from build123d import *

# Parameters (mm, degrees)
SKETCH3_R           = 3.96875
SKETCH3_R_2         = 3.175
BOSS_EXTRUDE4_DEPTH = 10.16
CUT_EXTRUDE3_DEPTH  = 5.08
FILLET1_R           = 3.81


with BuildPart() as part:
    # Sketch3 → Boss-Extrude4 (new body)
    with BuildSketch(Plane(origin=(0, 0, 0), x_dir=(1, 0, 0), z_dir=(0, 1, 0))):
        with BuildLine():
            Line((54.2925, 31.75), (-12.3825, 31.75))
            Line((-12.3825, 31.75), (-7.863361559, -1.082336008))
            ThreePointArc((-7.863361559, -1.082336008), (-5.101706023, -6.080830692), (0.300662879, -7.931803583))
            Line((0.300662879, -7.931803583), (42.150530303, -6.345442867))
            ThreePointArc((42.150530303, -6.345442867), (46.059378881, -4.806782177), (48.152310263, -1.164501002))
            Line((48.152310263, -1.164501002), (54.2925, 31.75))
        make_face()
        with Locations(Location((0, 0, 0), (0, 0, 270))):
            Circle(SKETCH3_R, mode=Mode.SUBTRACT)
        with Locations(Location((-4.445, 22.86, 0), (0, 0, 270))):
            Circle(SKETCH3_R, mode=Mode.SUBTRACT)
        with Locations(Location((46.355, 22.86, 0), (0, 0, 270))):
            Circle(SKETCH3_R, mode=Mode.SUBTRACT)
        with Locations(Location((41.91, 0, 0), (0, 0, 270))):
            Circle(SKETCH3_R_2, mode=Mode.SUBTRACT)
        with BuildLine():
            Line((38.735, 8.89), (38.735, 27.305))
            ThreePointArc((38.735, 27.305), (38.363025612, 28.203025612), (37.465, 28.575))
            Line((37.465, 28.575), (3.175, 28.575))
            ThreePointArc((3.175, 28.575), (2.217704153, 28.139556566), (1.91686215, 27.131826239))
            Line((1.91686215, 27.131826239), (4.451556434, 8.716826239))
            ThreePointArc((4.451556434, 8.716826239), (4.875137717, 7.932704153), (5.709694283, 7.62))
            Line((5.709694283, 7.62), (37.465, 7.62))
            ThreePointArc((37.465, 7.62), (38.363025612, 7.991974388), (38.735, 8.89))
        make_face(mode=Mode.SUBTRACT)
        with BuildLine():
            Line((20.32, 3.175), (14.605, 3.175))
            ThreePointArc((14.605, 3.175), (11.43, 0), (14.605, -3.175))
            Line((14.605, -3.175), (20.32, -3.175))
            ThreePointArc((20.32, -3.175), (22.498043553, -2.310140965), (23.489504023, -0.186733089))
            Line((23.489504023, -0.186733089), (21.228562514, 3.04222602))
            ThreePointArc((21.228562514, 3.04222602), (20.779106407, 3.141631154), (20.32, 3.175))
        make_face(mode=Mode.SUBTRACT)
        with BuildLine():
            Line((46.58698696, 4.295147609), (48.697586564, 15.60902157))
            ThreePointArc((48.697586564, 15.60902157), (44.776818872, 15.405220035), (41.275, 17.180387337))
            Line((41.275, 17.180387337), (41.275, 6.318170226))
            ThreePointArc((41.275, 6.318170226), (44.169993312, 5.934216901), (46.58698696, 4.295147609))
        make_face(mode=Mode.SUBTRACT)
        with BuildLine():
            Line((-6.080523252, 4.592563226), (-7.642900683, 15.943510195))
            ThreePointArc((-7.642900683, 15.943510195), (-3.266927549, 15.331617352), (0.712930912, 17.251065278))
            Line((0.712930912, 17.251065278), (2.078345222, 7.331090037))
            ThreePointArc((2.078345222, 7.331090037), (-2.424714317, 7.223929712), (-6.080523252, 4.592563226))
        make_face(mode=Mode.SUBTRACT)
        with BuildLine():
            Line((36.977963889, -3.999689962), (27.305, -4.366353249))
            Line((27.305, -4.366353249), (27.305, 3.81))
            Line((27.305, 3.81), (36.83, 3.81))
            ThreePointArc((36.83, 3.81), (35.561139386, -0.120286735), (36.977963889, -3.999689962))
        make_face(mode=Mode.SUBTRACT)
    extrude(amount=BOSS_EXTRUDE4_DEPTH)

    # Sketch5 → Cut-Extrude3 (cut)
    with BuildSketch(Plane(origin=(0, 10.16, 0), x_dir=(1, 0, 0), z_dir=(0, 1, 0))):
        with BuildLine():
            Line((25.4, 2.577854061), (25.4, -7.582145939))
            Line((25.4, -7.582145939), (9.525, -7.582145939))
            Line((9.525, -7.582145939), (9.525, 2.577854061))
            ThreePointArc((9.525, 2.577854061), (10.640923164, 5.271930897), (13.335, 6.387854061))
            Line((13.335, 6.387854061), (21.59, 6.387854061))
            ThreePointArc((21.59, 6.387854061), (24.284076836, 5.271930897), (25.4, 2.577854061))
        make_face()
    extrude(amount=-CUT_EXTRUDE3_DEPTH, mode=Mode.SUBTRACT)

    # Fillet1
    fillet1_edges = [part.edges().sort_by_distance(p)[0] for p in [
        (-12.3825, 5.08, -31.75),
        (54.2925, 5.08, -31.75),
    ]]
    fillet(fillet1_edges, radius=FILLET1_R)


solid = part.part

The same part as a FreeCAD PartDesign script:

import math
import FreeCAD as App
import Part
import Sketcher
from FreeCAD import Vector
Q = App.Units.Quantity


def edges_at(feature, points):
    """Names of the edges that pass closest to the given points."""
    edges = feature.Shape.Edges
    near = lambda p: min(range(len(edges)), key=lambda i: edges[i].distToShape(Part.Vertex(*p))[0])
    return sorted({f"Edge{near(p) + 1}" for p in points})

doc = App.newDocument("Part")
body = doc.addObject("PartDesign::Body", "Body")

# Sketch on XZ plane
sketch1 = doc.addObject("Sketcher::SketchObject", "Sketch")
body.addObject(sketch1)
sketch1.AttachmentSupport = (doc.XZ_Plane, [""])
sketch1.MapMode = "FlatFace"
sketch1.addGeometry(Part.LineSegment(Vector(54.3, -31.8, 0), Vector(-12.4, -31.8, 0)), False)
sketch1.addGeometry(Part.LineSegment(Vector(-12.4, -31.8, 0), Vector(-7.9, 1.1, 0)), False)
sketch1.addGeometry(Part.ArcOfCircle(Part.Circle(Vector(0, 0, 0), Vector(0, 0, 1), 7.9), math.radians(88), math.radians(172)), False)
sketch1.addGeometry(Part.LineSegment(Vector(0.3, 7.9, 0), Vector(42.2, 6.3, 0)), False)
sketch1.addGeometry(Part.ArcOfCircle(Part.Circle(Vector(41.9, 0, 0), Vector(0, 0, 1), 6.4), math.radians(11), math.radians(88)), False)
sketch1.addGeometry(Part.LineSegment(Vector(48.2, 1.2, 0), Vector(54.3, -31.8, 0)), False)
sketch1.addGeometry(Part.Circle(Vector(0, 0, 0), Vector(0, 0, 1), 4), False)
sketch1.addGeometry(Part.LineSegment(Vector(14.6, -3.2, 0), Vector(20.3, -3.2, 0)), False)
sketch1.addGeometry(Part.ArcOfCircle(Part.Circle(Vector(20.3, 0, 0), Vector(0, 0, 1), 3.2), math.radians(-90), math.radians(-73.37)), False)
sketch1.addGeometry(Part.LineSegment(Vector(21.2, -3, 0), Vector(23.5, 0.2, 0)), False)
sketch1.addGeometry(Part.ArcOfCircle(Part.Circle(Vector(20.3, 0, 0), Vector(0, 0, 1), 3.2), math.radians(3), math.radians(90)), False)
sketch1.addGeometry(Part.LineSegment(Vector(20.3, 3.2, 0), Vector(14.6, 3.2, 0)), False)
sketch1.addGeometry(Part.ArcOfCircle(Part.Circle(Vector(14.6, 0, 0), Vector(0, 0, 1), 3.2), math.radians(90), math.radians(270)), False)
sketch1.addGeometry(Part.ArcOfCircle(Part.Circle(Vector(0, 0, 0), Vector(0, 0, 1), 7.6), math.radians(-143), math.radians(-74)), False)
sketch1.addGeometry(Part.LineSegment(Vector(-6.1, -4.6, 0), Vector(-7.6, -15.9, 0)), False)
sketch1.addGeometry(Part.ArcOfCircle(Part.Circle(Vector(-4.4, -22.9, 0), Vector(0, 0, 1), 7.6), math.radians(47), math.radians(115)), False)
sketch1.addGeometry(Part.LineSegment(Vector(0.7, -17.3, 0), Vector(2.1, -7.3, 0)), False)
sketch1.addGeometry(Part.ArcOfCircle(Part.Circle(Vector(41.9, 0, 0), Vector(0, 0, 1), 6.3), math.radians(141), math.radians(217)), False)
sketch1.addGeometry(Part.LineSegment(Vector(37, 4, 0), Vector(27.3, 4.4, 0)), False)
sketch1.addGeometry(Part.LineSegment(Vector(27.3, 4.4, 0), Vector(27.3, -3.8, 0)), False)
sketch1.addGeometry(Part.LineSegment(Vector(27.3, -3.8, 0), Vector(36.8, -3.8, 0)), False)
sketch1.addGeometry(Part.Circle(Vector(41.9, 0, 0), Vector(0, 0, 1), 3.2), False)
sketch1.addGeometry(Part.LineSegment(Vector(48.7, -15.6, 0), Vector(46.6, -4.3, 0)), False)
sketch1.addGeometry(Part.ArcOfCircle(Part.Circle(Vector(41.9, 0, 0), Vector(0, 0, 1), 6.4), math.radians(-96), math.radians(-43)), False)
sketch1.addGeometry(Part.LineSegment(Vector(41.3, -6.3, 0), Vector(41.3, -17.2, 0)), False)
sketch1.addGeometry(Part.ArcOfCircle(Part.Circle(Vector(46.4, -22.9, 0), Vector(0, 0, 1), 7.6), math.radians(72), math.radians(132)), False)
sketch1.addGeometry(Part.LineSegment(Vector(38.7, -27.3, 0), Vector(38.7, -8.9, 0)), False)
sketch1.addGeometry(Part.ArcOfCircle(Part.Circle(Vector(37.5, -8.9, 0), Vector(0, 0, 1), 1.3), math.radians(0), math.radians(90)), False)
sketch1.addGeometry(Part.LineSegment(Vector(37.5, -7.6, 0), Vector(5.7, -7.6, 0)), False)
sketch1.addGeometry(Part.ArcOfCircle(Part.Circle(Vector(5.7, -8.9, 0), Vector(0, 0, 1), 1.3), math.radians(90), math.radians(172)), False)
sketch1.addGeometry(Part.LineSegment(Vector(4.5, -8.7, 0), Vector(1.9, -27.1, 0)), False)
sketch1.addGeometry(Part.ArcOfCircle(Part.Circle(Vector(3.2, -27.3, 0), Vector(0, 0, 1), 1.3), math.radians(172), math.radians(270)), False)
sketch1.addGeometry(Part.LineSegment(Vector(3.2, -28.6, 0), Vector(37.5, -28.6, 0)), False)
sketch1.addGeometry(Part.ArcOfCircle(Part.Circle(Vector(37.5, -27.3, 0), Vector(0, 0, 1), 1.3), math.radians(-90), math.radians(0)), False)
sketch1.addGeometry(Part.Circle(Vector(-4.4, -22.9, 0), Vector(0, 0, 1), 4), False)
sketch1.addGeometry(Part.Circle(Vector(46.4, -22.9, 0), Vector(0, 0, 1), 4), False)
sketch1.addConstraint(Sketcher.Constraint("Coincident", 0, 2, 1, 1))
sketch1.addConstraint(Sketcher.Constraint("Tangent", 1, 2, 2, 2))
sketch1.addConstraint(Sketcher.Constraint("Tangent", 2, 1, 3, 1))
sketch1.addConstraint(Sketcher.Constraint("Tangent", 3, 2, 4, 2))
sketch1.addConstraint(Sketcher.Constraint("Tangent", 4, 1, 5, 1))
sketch1.addConstraint(Sketcher.Constraint("Coincident", 5, 2, 0, 1))
sketch1.addConstraint(Sketcher.Constraint("Tangent", 7, 2, 8, 1))
sketch1.addConstraint(Sketcher.Constraint("Coincident", 8, 2, 9, 1))
sketch1.addConstraint(Sketcher.Constraint("Coincident", 9, 2, 10, 1))
sketch1.addConstraint(Sketcher.Constraint("Tangent", 10, 2, 11, 1))
sketch1.addConstraint(Sketcher.Constraint("Tangent", 11, 2, 12, 1))
sketch1.addConstraint(Sketcher.Constraint("Tangent", 12, 2, 7, 1))
sketch1.addConstraint(Sketcher.Constraint("Coincident", 13, 1, 14, 1))
sketch1.addConstraint(Sketcher.Constraint("Coincident", 14, 2, 15, 2))
sketch1.addConstraint(Sketcher.Constraint("Coincident", 15, 1, 16, 1))
sketch1.addConstraint(Sketcher.Constraint("Coincident", 16, 2, 13, 2))
sketch1.addConstraint(Sketcher.Constraint("Coincident", 17, 1, 18, 1))
sketch1.addConstraint(Sketcher.Constraint("Coincident", 18, 2, 19, 1))
sketch1.addConstraint(Sketcher.Constraint("Coincident", 19, 2, 20, 1))
sketch1.addConstraint(Sketcher.Constraint("Coincident", 20, 2, 17, 2))
sketch1.addConstraint(Sketcher.Constraint("Coincident", 22, 2, 23, 2))
sketch1.addConstraint(Sketcher.Constraint("Coincident", 23, 1, 24, 1))
sketch1.addConstraint(Sketcher.Constraint("Coincident", 24, 2, 25, 2))
sketch1.addConstraint(Sketcher.Constraint("Coincident", 25, 1, 22, 1))
sketch1.addConstraint(Sketcher.Constraint("Tangent", 26, 2, 27, 1))
sketch1.addConstraint(Sketcher.Constraint("Tangent", 27, 2, 28, 1))
sketch1.addConstraint(Sketcher.Constraint("Tangent", 28, 2, 29, 1))
sketch1.addConstraint(Sketcher.Constraint("Tangent", 29, 2, 30, 1))
sketch1.addConstraint(Sketcher.Constraint("Tangent", 30, 2, 31, 1))
sketch1.addConstraint(Sketcher.Constraint("Tangent", 31, 2, 32, 1))
sketch1.addConstraint(Sketcher.Constraint("Tangent", 32, 2, 33, 1))
sketch1.addConstraint(Sketcher.Constraint("Tangent", 33, 2, 26, 1))
sketch1.addConstraint(Sketcher.Constraint("Horizontal", 0))
sketch1.addConstraint(Sketcher.Constraint("Horizontal", 7))
sketch1.addConstraint(Sketcher.Constraint("Horizontal", 11))
sketch1.addConstraint(Sketcher.Constraint("Vertical", 19))
sketch1.addConstraint(Sketcher.Constraint("Horizontal", 20))
sketch1.addConstraint(Sketcher.Constraint("Vertical", 24))
sketch1.addConstraint(Sketcher.Constraint("Vertical", 26))
sketch1.addConstraint(Sketcher.Constraint("Horizontal", 28))
sketch1.addConstraint(Sketcher.Constraint("Horizontal", 32))
sketch1.addConstraint(Sketcher.Constraint("Coincident", 2, 3, -1, 1))
sketch1.addConstraint(Sketcher.Constraint("Coincident", 6, 3, -1, 1))
sketch1.addConstraint(Sketcher.Constraint("Coincident", 13, 3, -1, 1))
sketch1.addConstraint(Sketcher.Constraint("Coincident", 10, 3, 8, 3))
sketch1.addConstraint(Sketcher.Constraint("Coincident", 17, 3, 4, 3))
sketch1.addConstraint(Sketcher.Constraint("Coincident", 21, 3, 4, 3))
sketch1.addConstraint(Sketcher.Constraint("Coincident", 23, 3, 4, 3))
sketch1.addConstraint(Sketcher.Constraint("Coincident", 34, 3, 15, 3))
sketch1.addConstraint(Sketcher.Constraint("Coincident", 35, 3, 25, 3))
sketch1.addConstraint(Sketcher.Constraint("Equal", 8, 10))
sketch1.addConstraint(Sketcher.Constraint("Equal", 13, 15))
sketch1.addConstraint(Sketcher.Constraint("Equal", 4, 17))
sketch1.addConstraint(Sketcher.Constraint("Equal", 12, 21))
sketch1.addConstraint(Sketcher.Constraint("Equal", 17, 23))
sketch1.addConstraint(Sketcher.Constraint("Equal", 15, 25))
sketch1.addConstraint(Sketcher.Constraint("Equal", 27, 29))
sketch1.addConstraint(Sketcher.Constraint("Equal", 29, 31))
sketch1.addConstraint(Sketcher.Constraint("Equal", 31, 33))
sketch1.addConstraint(Sketcher.Constraint("Equal", 6, 34))
sketch1.addConstraint(Sketcher.Constraint("Equal", 34, 35))
sketch1.addConstraint(Sketcher.Constraint("PointOnObject", 4, 3, -1))
sketch1.addConstraint(Sketcher.Constraint("PointOnObject", 8, 3, -1))
sketch1.addConstraint(Sketcher.Constraint("Parallel", 1, 14))
sketch1.addConstraint(Sketcher.Constraint("Parallel", 14, 16))
sketch1.addConstraint(Sketcher.Constraint("Parallel", 3, 18))
sketch1.addConstraint(Sketcher.Constraint("Parallel", 5, 22))
sketch1.addConstraint(Sketcher.Constraint("Parallel", 16, 30))
sketch1.addConstraint(Sketcher.Constraint("Horizontal", 15, 3, 25, 3))
sketch1.addConstraint(Sketcher.Constraint("Radius", 13, Q("0.3 in")))
sketch1.addConstraint(Sketcher.Constraint("Diameter", 21, Q("0.25 in")))
sketch1.addConstraint(Sketcher.Constraint("Radius", 4, Q("0.25 in")))
sketch1.addConstraint(Sketcher.Constraint("Radius", 27, Q("0.05 in")))
sketch1.addConstraint(Sketcher.Constraint("Diameter", 6, Q("0.3125 in")))
sketch1.addConstraint(Sketcher.Constraint("Angle", 9, Q("55 deg")))
sketch1.addConstraint(Sketcher.Constraint("Radius", 2, Q("0.3125 in")))
sketch1.addConstraint(Sketcher.Constraint("DistanceX", 32, 1, 32, 2, Q("1.35 in")))
sketch1.addConstraint(Sketcher.Constraint("DistanceX", -1, 1, 8, 3, Q("0.8 in")))
sketch1.addConstraint(Sketcher.Constraint("DistanceY", 15, 3, -1, 1, Q("0.9 in")))
sketch1.addConstraint(Sketcher.Constraint("DistanceY", 27, 2, -1, 1, Q("0.3 in")))
sketch1.addConstraint(Sketcher.Constraint("DistanceX", 15, 3, 31, 3, Q("0.3 in")))
sketch1.addConstraint(Sketcher.Constraint("DistanceY", 0, 2, 29, 3, Q("0.9 in")))
sketch1.addConstraint(Sketcher.Constraint("DistanceY", 27, 3, 20, 2, Q("0.2 in")))
sketch1.addConstraint(Sketcher.Constraint("DistanceX", 24, 2, 35, 3, Q("0.2 in")))
sketch1.addConstraint(Sketcher.Constraint("DistanceX", 26, 2, 23, 1, Q("0.1 in")))
sketch1.addConstraint(Sketcher.Constraint("DistanceX", 0, 2, 0, 1, Q("2.625 in")))
sketch1.addConstraint(Sketcher.Constraint("DistanceX", 7, 1, 7, 2, Q("0.225 in")))
sketch1.addConstraint(Sketcher.Constraint("DistanceX", 20, 1, 20, 2, Q("0.375 in")))
sketch1.addConstraint(Sketcher.Constraint("DistanceY", 26, 1, 26, 2, Q("0.725 in")))
sketch1.addConstraint(Sketcher.Constraint("DistanceX", -1, 1, 4, 3, Q("1.65 in")))
sketch1.addConstraint(Sketcher.Constraint("DistanceX", 15, 3, 12, 3, Q("0.75 in")))
sketch1.addConstraint(Sketcher.Constraint("DistanceX", 0, 2, 15, 3, Q("0.3125 in")))
sketch1.addConstraint(Sketcher.Constraint("DistanceX", 14, 2, -1, 1, Q("7.642901 mm")))
sketch1.addConstraint(Sketcher.Constraint("DistanceX", 22, 2, 25, 1, Q("2.1106 mm")))
sketch1.addConstraint(Sketcher.Constraint("Distance", 9, Q("3.941831 mm")))
sketch1.addConstraint(Sketcher.Constraint("Distance", 18, Q("9.679911 mm")))
sketch1.addConstraint(Sketcher.Constraint("DistanceX", -1, 1, 15, 1, Q("0.712931 mm")))
pad1 = doc.addObject("PartDesign::Pad", "Pad")
body.addObject(pad1)
pad1.Profile = sketch1
pad1.Length = Q("0.4 in")
pad1.Reversed = True

# Sketch on XZ plane
sketch2 = doc.addObject("Sketcher::SketchObject", "Sketch001")
body.addObject(sketch2)
sketch2.AttachmentSupport = (doc.XZ_Plane, [""])
sketch2.MapMode = "FlatFace"
sketch2.AttachmentOffset = App.Placement(Vector(0, 0, -0.4 * 25.4), App.Rotation())
sketch2.addGeometry(Part.LineSegment(Vector(25.4, 7.6, 0), Vector(25.4, -2.6, 0)), False)
sketch2.addGeometry(Part.ArcOfCircle(Part.Circle(Vector(21.6, -2.6, 0), Vector(0, 0, 1), 3.8), math.radians(-90), math.radians(0)), False)
sketch2.addGeometry(Part.LineSegment(Vector(21.6, -6.4, 0), Vector(13.3, -6.4, 0)), False)
sketch2.addGeometry(Part.ArcOfCircle(Part.Circle(Vector(13.3, -2.6, 0), Vector(0, 0, 1), 3.8), math.radians(-180), math.radians(-90)), False)
sketch2.addGeometry(Part.LineSegment(Vector(9.5, -2.6, 0), Vector(9.5, 7.6, 0)), False)
sketch2.addGeometry(Part.LineSegment(Vector(9.5, 7.6, 0), Vector(25.4, 7.6, 0)), False)
sketch2.addConstraint(Sketcher.Constraint("Tangent", 0, 2, 1, 2))
sketch2.addConstraint(Sketcher.Constraint("Tangent", 1, 1, 2, 1))
sketch2.addConstraint(Sketcher.Constraint("Tangent", 2, 2, 3, 2))
sketch2.addConstraint(Sketcher.Constraint("Tangent", 3, 1, 4, 1))
sketch2.addConstraint(Sketcher.Constraint("Coincident", 4, 2, 5, 1))
sketch2.addConstraint(Sketcher.Constraint("Coincident", 5, 2, 0, 1))
sketch2.addConstraint(Sketcher.Constraint("Vertical", 0))
sketch2.addConstraint(Sketcher.Constraint("Horizontal", 2))
sketch2.addConstraint(Sketcher.Constraint("Vertical", 4))
sketch2.addConstraint(Sketcher.Constraint("Horizontal", 5))
sketch2.addConstraint(Sketcher.Constraint("Equal", 1, 3))
sketch2.addConstraint(Sketcher.Constraint("Radius", 1, Q("0.15 in")))
sketch2.addConstraint(Sketcher.Constraint("DistanceY", 0, 2, 0, 1, Q("0.4 in")))
sketch2.addConstraint(Sketcher.Constraint("DistanceX", -1, 1, 0, 2, Q("1 in")))
sketch2.addConstraint(Sketcher.Constraint("DistanceX", 2, 2, 2, 1, Q("0.325 in")))
sketch2.addConstraint(Sketcher.Constraint("DistanceY", 1, 3, -1, 1, Q("2.577854 mm")))
pocket1 = doc.addObject("PartDesign::Pocket", "Pocket")
body.addObject(pocket1)
pocket1.Profile = sketch2
pocket1.Length = Q("0.2 in")
pocket1.Reversed = True
doc.recompute()

fillet = doc.addObject("PartDesign::Fillet", "Fillet")
body.addObject(fillet)
fillet.Base = (pocket1, edges_at(pocket1, [(-12.383, 5.08, -31.75), (54.292, 5.08, -31.75)]))
fillet.Radius = Q("0.15 in")

doc.recompute()
